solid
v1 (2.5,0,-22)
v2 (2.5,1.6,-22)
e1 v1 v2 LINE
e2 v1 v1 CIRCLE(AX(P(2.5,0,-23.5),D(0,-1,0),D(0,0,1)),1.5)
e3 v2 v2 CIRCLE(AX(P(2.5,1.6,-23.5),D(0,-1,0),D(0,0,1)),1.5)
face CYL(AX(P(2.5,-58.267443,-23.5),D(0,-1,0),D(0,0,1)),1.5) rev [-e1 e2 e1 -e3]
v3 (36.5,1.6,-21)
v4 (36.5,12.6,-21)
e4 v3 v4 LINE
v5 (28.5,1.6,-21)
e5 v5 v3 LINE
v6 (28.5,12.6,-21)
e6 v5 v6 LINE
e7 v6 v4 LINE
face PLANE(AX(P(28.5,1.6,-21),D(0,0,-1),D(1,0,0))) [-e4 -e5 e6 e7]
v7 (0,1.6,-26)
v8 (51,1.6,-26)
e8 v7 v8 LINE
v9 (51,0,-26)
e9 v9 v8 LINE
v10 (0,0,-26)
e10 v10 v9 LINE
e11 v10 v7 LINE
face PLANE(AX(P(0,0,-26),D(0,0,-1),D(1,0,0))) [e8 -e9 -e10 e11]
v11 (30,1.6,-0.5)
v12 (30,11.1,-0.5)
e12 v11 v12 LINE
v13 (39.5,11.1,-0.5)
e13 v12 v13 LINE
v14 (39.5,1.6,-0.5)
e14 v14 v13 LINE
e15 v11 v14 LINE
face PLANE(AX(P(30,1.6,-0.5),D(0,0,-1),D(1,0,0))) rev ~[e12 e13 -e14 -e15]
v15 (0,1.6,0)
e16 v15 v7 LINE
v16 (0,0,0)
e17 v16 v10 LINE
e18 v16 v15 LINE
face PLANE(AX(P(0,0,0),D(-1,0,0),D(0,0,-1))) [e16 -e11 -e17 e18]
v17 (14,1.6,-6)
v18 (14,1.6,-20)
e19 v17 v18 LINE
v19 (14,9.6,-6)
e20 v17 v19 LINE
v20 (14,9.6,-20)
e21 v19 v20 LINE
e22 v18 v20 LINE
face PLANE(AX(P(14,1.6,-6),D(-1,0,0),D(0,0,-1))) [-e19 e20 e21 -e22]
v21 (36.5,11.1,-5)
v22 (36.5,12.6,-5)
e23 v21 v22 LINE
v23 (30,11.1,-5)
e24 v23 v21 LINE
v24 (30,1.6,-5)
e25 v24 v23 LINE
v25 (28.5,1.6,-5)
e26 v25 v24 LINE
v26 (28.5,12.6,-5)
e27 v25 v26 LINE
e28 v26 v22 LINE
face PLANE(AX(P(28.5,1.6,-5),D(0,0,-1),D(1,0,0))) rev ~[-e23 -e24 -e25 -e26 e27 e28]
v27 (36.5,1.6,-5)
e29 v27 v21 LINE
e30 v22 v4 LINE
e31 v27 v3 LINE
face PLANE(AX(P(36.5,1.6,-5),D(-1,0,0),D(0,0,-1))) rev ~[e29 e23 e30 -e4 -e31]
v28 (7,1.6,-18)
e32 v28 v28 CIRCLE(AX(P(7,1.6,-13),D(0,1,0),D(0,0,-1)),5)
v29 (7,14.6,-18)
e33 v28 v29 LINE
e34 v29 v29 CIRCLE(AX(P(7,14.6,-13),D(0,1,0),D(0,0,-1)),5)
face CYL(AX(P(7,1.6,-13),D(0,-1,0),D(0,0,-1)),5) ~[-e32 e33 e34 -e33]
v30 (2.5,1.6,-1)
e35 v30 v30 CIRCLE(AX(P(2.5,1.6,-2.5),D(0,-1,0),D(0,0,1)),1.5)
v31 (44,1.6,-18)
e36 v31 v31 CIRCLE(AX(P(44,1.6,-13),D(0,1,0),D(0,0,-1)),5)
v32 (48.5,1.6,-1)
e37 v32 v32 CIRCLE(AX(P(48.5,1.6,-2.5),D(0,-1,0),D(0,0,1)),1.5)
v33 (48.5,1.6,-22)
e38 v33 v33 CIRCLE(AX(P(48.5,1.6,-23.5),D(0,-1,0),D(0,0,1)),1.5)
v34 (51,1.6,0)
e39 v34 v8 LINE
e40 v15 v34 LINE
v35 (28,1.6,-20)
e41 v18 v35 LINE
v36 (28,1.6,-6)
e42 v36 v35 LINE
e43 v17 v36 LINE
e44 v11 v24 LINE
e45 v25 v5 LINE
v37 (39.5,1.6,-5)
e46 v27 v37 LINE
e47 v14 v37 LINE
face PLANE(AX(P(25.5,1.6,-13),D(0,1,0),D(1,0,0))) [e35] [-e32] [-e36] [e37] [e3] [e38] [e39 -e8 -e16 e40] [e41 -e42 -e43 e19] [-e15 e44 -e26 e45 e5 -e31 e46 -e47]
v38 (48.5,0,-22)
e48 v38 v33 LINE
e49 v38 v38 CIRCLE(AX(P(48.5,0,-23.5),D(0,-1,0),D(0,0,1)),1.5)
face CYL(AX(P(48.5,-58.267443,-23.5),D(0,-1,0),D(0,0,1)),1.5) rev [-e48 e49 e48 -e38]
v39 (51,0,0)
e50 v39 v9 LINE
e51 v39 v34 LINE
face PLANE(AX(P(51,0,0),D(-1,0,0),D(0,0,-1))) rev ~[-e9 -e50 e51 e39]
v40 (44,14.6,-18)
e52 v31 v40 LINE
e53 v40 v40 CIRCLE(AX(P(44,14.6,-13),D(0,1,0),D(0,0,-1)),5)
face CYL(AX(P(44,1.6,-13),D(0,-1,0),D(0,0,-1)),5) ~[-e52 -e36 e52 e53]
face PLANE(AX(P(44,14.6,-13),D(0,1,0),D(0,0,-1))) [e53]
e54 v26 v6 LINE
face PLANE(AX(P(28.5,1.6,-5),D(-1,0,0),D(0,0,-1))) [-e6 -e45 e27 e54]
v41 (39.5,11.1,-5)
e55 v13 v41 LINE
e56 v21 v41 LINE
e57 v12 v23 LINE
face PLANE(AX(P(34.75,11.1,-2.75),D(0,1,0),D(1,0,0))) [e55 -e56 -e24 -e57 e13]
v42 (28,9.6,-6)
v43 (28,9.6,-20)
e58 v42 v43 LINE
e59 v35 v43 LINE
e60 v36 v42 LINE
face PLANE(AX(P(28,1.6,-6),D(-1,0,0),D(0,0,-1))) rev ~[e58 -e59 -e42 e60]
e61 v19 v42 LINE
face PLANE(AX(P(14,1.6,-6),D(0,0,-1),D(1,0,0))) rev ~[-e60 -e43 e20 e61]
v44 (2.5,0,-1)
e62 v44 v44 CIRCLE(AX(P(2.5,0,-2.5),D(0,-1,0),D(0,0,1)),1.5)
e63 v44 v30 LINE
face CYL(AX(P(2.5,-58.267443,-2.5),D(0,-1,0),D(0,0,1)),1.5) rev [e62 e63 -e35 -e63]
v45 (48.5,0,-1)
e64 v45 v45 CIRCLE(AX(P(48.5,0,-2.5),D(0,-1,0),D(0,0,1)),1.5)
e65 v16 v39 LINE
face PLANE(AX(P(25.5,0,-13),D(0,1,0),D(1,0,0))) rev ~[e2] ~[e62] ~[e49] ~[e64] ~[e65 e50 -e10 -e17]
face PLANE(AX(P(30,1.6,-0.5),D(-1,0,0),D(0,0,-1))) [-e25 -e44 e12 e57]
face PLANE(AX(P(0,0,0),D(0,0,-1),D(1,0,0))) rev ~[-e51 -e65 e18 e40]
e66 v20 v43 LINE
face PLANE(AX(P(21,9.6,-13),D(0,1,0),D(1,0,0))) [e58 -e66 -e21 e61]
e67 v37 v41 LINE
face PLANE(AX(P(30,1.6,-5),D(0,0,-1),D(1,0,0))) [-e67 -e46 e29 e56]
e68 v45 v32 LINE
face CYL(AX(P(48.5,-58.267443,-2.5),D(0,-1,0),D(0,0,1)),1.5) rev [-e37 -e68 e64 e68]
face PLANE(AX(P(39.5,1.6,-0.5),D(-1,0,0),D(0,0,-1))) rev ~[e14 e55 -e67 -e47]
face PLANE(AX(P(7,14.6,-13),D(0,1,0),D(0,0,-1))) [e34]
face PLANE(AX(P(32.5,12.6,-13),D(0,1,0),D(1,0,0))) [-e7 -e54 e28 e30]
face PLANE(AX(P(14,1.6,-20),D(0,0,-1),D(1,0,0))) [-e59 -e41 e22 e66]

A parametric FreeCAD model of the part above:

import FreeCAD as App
import Part
import Sketcher

V = App.Vector
Q = App.Units.Quantity

doc = App.newDocument("Part")
body = doc.addObject("PartDesign::Body", "Body")

# Sketch on XZ plane
sketch1 = doc.addObject("Sketcher::SketchObject", "Sketch")
body.addObject(sketch1)
sketch1.AttachmentSupport = (doc.XZ_Plane, [""])
sketch1.MapMode = "FlatFace"
sketch1.addGeometry([
    Part.LineSegment(V(0, -26, 0), V(0, 0, 0)),
    Part.LineSegment(V(0, 0, 0), V(51, 0, 0)),
    Part.LineSegment(V(51, 0, 0), V(51, -26, 0)),
    Part.LineSegment(V(51, -26, 0), V(0, -26, 0)),
], False)
sketch1.addConstraint([
    Sketcher.Constraint("Coincident", 0, 2, 1, 1),
    Sketcher.Constraint("Coincident", 1, 2, 2, 1),
    Sketcher.Constraint("Coincident", 2, 2, 3, 1),
    Sketcher.Constraint("Coincident", 3, 2, 0, 1),
    Sketcher.Constraint("Vertical", 0),
    Sketcher.Constraint("Horizontal", 1),
    Sketcher.Constraint("Vertical", 2),
    Sketcher.Constraint("Horizontal", 3),
    Sketcher.Constraint("Coincident", 0, 2, -1, 1),
    Sketcher.Constraint("DistanceX", 1, 1, 1, 2, Q("51 mm")),
    Sketcher.Constraint("DistanceY", 0, 1, 0, 2, Q("26 mm")),
])
pad1 = doc.addObject("PartDesign::Pad", "Pad")
body.addObject(pad1)
pad1.Profile = sketch1
pad1.Length = 1.6
pad1.Reversed = True

# Sketch on XZ plane
sketch2 = doc.addObject("Sketcher::SketchObject", "Sketch001")
body.addObject(sketch2)
sketch2.AttachmentSupport = (doc.XZ_Plane, [""])
sketch2.MapMode = "FlatFace"
sketch2.addGeometry(Part.Circle(V(2.5, -2.5, 0), V(0, 0, 1), 1.5), False)
sketch2.addConstraint([
    Sketcher.Constraint("Diameter", 0, Q("3 mm")),
    Sketcher.Constraint("DistanceX", -1, 1, 0, 3, Q("2.5 mm")),
    Sketcher.Constraint("DistanceY", 0, 3, -1, 1, Q("2.5 mm")),
])
pocket1 = doc.addObject("PartDesign::Pocket", "Pocket")
body.addObject(pocket1)
pocket1.Profile = sketch2
pocket1.Type = "ThroughAll"
pocket1.Midplane = True

# Sketch on XZ plane
sketch3 = doc.addObject("Sketcher::SketchObject", "Sketch002")
body.addObject(sketch3)
sketch3.AttachmentSupport = (doc.XZ_Plane, [""])
sketch3.MapMode = "FlatFace"
sketch3.addGeometry(Part.Circle(V(48.5, -2.5, 0), V(0, 0, 1), 1.5), False)
sketch3.addConstraint([
    Sketcher.Constraint("Diameter", 0, Q("3 mm")),
    Sketcher.Constraint("DistanceX", -1, 1, 0, 3, Q("48.5 mm")),
    Sketcher.Constraint("DistanceY", 0, 3, -1, 1, Q("2.5 mm")),
])
pocket2 = doc.addObject("PartDesign::Pocket", "Pocket001")
body.addObject(pocket2)
pocket2.Profile = sketch3
pocket2.Type = "ThroughAll"
pocket2.Midplane = True

# Sketch on XZ plane
sketch4 = doc.addObject("Sketcher::SketchObject", "Sketch003")
body.addObject(sketch4)
sketch4.AttachmentSupport = (doc.XZ_Plane, [""])
sketch4.MapMode = "FlatFace"
sketch4.addGeometry(Part.Circle(V(2.5, -23.5, 0), V(0, 0, 1), 1.5), False)
sketch4.addConstraint([
    Sketcher.Constraint("Diameter", 0, Q("3 mm")),
    Sketcher.Constraint("DistanceX", -1, 1, 0, 3, Q("2.5 mm")),
    Sketcher.Constraint("DistanceY", 0, 3, -1, 1, Q("23.5 mm")),
])
pocket3 = doc.addObject("PartDesign::Pocket", "Pocket002")
body.addObject(pocket3)
pocket3.Profile = sketch4
pocket3.Type = "ThroughAll"
pocket3.Midplane = True

# Sketch on XZ plane
sketch5 = doc.addObject("Sketcher::SketchObject", "Sketch004")
body.addObject(sketch5)
sketch5.AttachmentSupport = (doc.XZ_Plane, [""])
sketch5.MapMode = "FlatFace"
sketch5.addGeometry(Part.Circle(V(48.5, -23.5, 0), V(0, 0, 1), 1.5), False)
sketch5.addConstraint([
    Sketcher.Constraint("Diameter", 0, Q("3 mm")),
    Sketcher.Constraint("DistanceX", -1, 1, 0, 3, Q("48.5 mm")),
    Sketcher.Constraint("DistanceY", 0, 3, -1, 1, Q("23.5 mm")),
])
pocket4 = doc.addObject("PartDesign::Pocket", "Pocket003")
body.addObject(pocket4)
pocket4.Profile = sketch5
pocket4.Type = "ThroughAll"
pocket4.Midplane = True

# Sketch on XZ plane
sketch6 = doc.addObject("Sketcher::SketchObject", "Sketch005")
body.addObject(sketch6)
sketch6.AttachmentSupport = (doc.XZ_Plane, [""])
sketch6.MapMode = "FlatFace"
sketch6.AttachmentOffset = App.Placement(V(0, 0, -1.6), App.Rotation())
sketch6.addGeometry([
    Part.LineSegment(V(14, -20, 0), V(14, -6, 0)),
    Part.LineSegment(V(14, -6, 0), V(28, -6, 0)),
    Part.LineSegment(V(28, -6, 0), V(28, -20, 0)),
    Part.LineSegment(V(28, -20, 0), V(14, -20, 0)),
], False)
sketch6.addConstraint([
    Sketcher.Constraint("Coincident", 0, 2, 1, 1),
    Sketcher.Constraint("Coincident", 1, 2, 2, 1),
    Sketcher.Constraint("Coincident", 2, 2, 3, 1),
    Sketcher.Constraint("Coincident", 3, 2, 0, 1),
    Sketcher.Constraint("Vertical", 0),
    Sketcher.Constraint("Horizontal", 1),
    Sketcher.Constraint("Vertical", 2),
    Sketcher.Constraint("Horizontal", 3),
    Sketcher.Constraint("Equal", 3, 0),
    Sketcher.Constraint("DistanceX", 1, 1, 1, 2, Q("14 mm")),
    Sketcher.Constraint("DistanceX", -1, 1, 0, 2, Q("14 mm")),
    Sketcher.Constraint("DistanceY", 0, 2, -1, 1, Q("6 mm")),
])
pad2 = doc.addObject("PartDesign::Pad", "Pad001")
body.addObject(pad2)
pad2.Profile = sketch6
pad2.Length = 8
pad2.Reversed = True

# Sketch on XZ plane
sketch7 = doc.addObject("Sketcher::SketchObject", "Sketch006")
body.addObject(sketch7)
sketch7.AttachmentSupport = (doc.XZ_Plane, [""])
sketch7.MapMode = "FlatFace"
sketch7.AttachmentOffset = App.Placement(V(0, 0, -1.6), App.Rotation())
sketch7.addGeometry(Part.Circle(V(7, -13, 0), V(0, 0, 1), 5), False)
sketch7.addConstraint([
    Sketcher.Constraint("Diameter", 0, Q("10 mm")),
    Sketcher.Constraint("DistanceX", -1, 1, 0, 3, Q("7 mm")),
    Sketcher.Constraint("DistanceY", 0, 3, -1, 1, Q("13 mm")),
])
pad3 = doc.addObject("PartDesign::Pad", "Pad002")
body.addObject(pad3)
pad3.Profile = sketch7
pad3.Length = 13
pad3.Reversed = True

# Sketch on XZ plane
sketch8 = doc.addObject("Sketcher::SketchObject", "Sketch007")
body.addObject(sketch8)
sketch8.AttachmentSupport = (doc.XZ_Plane, [""])
sketch8.MapMode = "FlatFace"
sketch8.AttachmentOffset = App.Placement(V(0, 0, -1.6), App.Rotation())
sketch8.addGeometry(Part.Circle(V(44, -13, 0), V(0, 0, 1), 5), False)
sketch8.addConstraint([
    Sketcher.Constraint("Diameter", 0, Q("10 mm")),
    Sketcher.Constraint("DistanceX", -1, 1, 0, 3, Q("44 mm")),
    Sketcher.Constraint("DistanceY", 0, 3, -1, 1, Q("13 mm")),
])
pad4 = doc.addObject("PartDesign::Pad", "Pad003")
body.addObject(pad4)
pad4.Profile = sketch8
pad4.Length = 13
pad4.Reversed = True

# Sketch on XZ plane
sketch9 = doc.addObject("Sketcher::SketchObject", "Sketch008")
body.addObject(sketch9)
sketch9.AttachmentSupport = (doc.XZ_Plane, [""])
sketch9.MapMode = "FlatFace"
sketch9.AttachmentOffset = App.Placement(V(0, 0, -1.6), App.Rotation())
sketch9.addGeometry([
    Part.LineSegment(V(28, -21, 0), V(28, -5, 0)),
    Part.LineSegment(V(28, -5, 0), V(36, -5, 0)),
    Part.LineSegment(V(36, -5, 0), V(36, -21, 0)),
    Part.LineSegment(V(36, -21, 0), V(28, -21, 0)),
], False)
sketch9.addConstraint([
    Sketcher.Constraint("Coincident", 0, 2, 1, 1),
    Sketcher.Constraint("Coincident", 1, 2, 2, 1),
    Sketcher.Constraint("Coincident", 2, 2, 3, 1),
    Sketcher.Constraint("Coincident", 3, 2, 0, 1),
    Sketcher.Constraint("Vertical", 0),
    Sketcher.Constraint("Horizontal", 1),
    Sketcher.Constraint("Vertical", 2),
    Sketcher.Constraint("Horizontal", 3),
    Sketcher.Constraint("DistanceX", 1, 1, 1, 2, Q("8 mm")),
    Sketcher.Constraint("DistanceY", 0, 1, 0, 2, Q("16 mm")),
    Sketcher.Constraint("DistanceY", 0, 2, -1, 1, Q("5 mm")),
    Sketcher.Constraint("DistanceX", -1, 1, 0, 2, Q("28.5 mm")),
])
pad5 = doc.addObject("PartDesign::Pad", "Pad004")
body.addObject(pad5)
pad5.Profile = sketch9
pad5.Length = 11
pad5.Reversed = True

# Sketch on XZ plane
sketch10 = doc.addObject("Sketcher::SketchObject", "Sketch009")
body.addObject(sketch10)
sketch10.AttachmentSupport = (doc.XZ_Plane, [""])
sketch10.MapMode = "FlatFace"
sketch10.AttachmentOffset = App.Placement(V(0, 0, -1.6), App.Rotation())
sketch10.addGeometry([
    Part.LineSegment(V(30, -5, 0), V(30, -0.5, 0)),
    Part.LineSegment(V(30, -0.5, 0), V(39.5, -0.5, 0)),
    Part.LineSegment(V(39.5, -0.5, 0), V(39.5, -5, 0)),
    Part.LineSegment(V(39.5, -5, 0), V(30, -5, 0)),
], False)
sketch10.addConstraint([
    Sketcher.Constraint("Coincident", 0, 2, 1, 1),
    Sketcher.Constraint("Coincident", 1, 2, 2, 1),
    Sketcher.Constraint("Coincident", 2, 2, 3, 1),
    Sketcher.Constraint("Coincident", 3, 2, 0, 1),
    Sketcher.Constraint("Vertical", 0),
    Sketcher.Constraint("Horizontal", 1),
    Sketcher.Constraint("Vertical", 2),
    Sketcher.Constraint("Horizontal", 3),
    Sketcher.Constraint("DistanceX", 1, 1, 1, 2, Q("9.5 mm")),
    Sketcher.Constraint("DistanceY", 0, 1, 0, 2, Q("4.5 mm")),
    Sketcher.Constraint("DistanceX", -1, 1, 0, 2, Q("30 mm")),
    Sketcher.Constraint("DistanceY", 2, 2, -1, 1, Q("5 mm")),
])
pad6 = doc.addObject("PartDesign::Pad", "Pad005")
body.addObject(pad6)
pad6.Profile = sketch10
pad6.Length = 9.5
pad6.Reversed = True

doc.recompute()
